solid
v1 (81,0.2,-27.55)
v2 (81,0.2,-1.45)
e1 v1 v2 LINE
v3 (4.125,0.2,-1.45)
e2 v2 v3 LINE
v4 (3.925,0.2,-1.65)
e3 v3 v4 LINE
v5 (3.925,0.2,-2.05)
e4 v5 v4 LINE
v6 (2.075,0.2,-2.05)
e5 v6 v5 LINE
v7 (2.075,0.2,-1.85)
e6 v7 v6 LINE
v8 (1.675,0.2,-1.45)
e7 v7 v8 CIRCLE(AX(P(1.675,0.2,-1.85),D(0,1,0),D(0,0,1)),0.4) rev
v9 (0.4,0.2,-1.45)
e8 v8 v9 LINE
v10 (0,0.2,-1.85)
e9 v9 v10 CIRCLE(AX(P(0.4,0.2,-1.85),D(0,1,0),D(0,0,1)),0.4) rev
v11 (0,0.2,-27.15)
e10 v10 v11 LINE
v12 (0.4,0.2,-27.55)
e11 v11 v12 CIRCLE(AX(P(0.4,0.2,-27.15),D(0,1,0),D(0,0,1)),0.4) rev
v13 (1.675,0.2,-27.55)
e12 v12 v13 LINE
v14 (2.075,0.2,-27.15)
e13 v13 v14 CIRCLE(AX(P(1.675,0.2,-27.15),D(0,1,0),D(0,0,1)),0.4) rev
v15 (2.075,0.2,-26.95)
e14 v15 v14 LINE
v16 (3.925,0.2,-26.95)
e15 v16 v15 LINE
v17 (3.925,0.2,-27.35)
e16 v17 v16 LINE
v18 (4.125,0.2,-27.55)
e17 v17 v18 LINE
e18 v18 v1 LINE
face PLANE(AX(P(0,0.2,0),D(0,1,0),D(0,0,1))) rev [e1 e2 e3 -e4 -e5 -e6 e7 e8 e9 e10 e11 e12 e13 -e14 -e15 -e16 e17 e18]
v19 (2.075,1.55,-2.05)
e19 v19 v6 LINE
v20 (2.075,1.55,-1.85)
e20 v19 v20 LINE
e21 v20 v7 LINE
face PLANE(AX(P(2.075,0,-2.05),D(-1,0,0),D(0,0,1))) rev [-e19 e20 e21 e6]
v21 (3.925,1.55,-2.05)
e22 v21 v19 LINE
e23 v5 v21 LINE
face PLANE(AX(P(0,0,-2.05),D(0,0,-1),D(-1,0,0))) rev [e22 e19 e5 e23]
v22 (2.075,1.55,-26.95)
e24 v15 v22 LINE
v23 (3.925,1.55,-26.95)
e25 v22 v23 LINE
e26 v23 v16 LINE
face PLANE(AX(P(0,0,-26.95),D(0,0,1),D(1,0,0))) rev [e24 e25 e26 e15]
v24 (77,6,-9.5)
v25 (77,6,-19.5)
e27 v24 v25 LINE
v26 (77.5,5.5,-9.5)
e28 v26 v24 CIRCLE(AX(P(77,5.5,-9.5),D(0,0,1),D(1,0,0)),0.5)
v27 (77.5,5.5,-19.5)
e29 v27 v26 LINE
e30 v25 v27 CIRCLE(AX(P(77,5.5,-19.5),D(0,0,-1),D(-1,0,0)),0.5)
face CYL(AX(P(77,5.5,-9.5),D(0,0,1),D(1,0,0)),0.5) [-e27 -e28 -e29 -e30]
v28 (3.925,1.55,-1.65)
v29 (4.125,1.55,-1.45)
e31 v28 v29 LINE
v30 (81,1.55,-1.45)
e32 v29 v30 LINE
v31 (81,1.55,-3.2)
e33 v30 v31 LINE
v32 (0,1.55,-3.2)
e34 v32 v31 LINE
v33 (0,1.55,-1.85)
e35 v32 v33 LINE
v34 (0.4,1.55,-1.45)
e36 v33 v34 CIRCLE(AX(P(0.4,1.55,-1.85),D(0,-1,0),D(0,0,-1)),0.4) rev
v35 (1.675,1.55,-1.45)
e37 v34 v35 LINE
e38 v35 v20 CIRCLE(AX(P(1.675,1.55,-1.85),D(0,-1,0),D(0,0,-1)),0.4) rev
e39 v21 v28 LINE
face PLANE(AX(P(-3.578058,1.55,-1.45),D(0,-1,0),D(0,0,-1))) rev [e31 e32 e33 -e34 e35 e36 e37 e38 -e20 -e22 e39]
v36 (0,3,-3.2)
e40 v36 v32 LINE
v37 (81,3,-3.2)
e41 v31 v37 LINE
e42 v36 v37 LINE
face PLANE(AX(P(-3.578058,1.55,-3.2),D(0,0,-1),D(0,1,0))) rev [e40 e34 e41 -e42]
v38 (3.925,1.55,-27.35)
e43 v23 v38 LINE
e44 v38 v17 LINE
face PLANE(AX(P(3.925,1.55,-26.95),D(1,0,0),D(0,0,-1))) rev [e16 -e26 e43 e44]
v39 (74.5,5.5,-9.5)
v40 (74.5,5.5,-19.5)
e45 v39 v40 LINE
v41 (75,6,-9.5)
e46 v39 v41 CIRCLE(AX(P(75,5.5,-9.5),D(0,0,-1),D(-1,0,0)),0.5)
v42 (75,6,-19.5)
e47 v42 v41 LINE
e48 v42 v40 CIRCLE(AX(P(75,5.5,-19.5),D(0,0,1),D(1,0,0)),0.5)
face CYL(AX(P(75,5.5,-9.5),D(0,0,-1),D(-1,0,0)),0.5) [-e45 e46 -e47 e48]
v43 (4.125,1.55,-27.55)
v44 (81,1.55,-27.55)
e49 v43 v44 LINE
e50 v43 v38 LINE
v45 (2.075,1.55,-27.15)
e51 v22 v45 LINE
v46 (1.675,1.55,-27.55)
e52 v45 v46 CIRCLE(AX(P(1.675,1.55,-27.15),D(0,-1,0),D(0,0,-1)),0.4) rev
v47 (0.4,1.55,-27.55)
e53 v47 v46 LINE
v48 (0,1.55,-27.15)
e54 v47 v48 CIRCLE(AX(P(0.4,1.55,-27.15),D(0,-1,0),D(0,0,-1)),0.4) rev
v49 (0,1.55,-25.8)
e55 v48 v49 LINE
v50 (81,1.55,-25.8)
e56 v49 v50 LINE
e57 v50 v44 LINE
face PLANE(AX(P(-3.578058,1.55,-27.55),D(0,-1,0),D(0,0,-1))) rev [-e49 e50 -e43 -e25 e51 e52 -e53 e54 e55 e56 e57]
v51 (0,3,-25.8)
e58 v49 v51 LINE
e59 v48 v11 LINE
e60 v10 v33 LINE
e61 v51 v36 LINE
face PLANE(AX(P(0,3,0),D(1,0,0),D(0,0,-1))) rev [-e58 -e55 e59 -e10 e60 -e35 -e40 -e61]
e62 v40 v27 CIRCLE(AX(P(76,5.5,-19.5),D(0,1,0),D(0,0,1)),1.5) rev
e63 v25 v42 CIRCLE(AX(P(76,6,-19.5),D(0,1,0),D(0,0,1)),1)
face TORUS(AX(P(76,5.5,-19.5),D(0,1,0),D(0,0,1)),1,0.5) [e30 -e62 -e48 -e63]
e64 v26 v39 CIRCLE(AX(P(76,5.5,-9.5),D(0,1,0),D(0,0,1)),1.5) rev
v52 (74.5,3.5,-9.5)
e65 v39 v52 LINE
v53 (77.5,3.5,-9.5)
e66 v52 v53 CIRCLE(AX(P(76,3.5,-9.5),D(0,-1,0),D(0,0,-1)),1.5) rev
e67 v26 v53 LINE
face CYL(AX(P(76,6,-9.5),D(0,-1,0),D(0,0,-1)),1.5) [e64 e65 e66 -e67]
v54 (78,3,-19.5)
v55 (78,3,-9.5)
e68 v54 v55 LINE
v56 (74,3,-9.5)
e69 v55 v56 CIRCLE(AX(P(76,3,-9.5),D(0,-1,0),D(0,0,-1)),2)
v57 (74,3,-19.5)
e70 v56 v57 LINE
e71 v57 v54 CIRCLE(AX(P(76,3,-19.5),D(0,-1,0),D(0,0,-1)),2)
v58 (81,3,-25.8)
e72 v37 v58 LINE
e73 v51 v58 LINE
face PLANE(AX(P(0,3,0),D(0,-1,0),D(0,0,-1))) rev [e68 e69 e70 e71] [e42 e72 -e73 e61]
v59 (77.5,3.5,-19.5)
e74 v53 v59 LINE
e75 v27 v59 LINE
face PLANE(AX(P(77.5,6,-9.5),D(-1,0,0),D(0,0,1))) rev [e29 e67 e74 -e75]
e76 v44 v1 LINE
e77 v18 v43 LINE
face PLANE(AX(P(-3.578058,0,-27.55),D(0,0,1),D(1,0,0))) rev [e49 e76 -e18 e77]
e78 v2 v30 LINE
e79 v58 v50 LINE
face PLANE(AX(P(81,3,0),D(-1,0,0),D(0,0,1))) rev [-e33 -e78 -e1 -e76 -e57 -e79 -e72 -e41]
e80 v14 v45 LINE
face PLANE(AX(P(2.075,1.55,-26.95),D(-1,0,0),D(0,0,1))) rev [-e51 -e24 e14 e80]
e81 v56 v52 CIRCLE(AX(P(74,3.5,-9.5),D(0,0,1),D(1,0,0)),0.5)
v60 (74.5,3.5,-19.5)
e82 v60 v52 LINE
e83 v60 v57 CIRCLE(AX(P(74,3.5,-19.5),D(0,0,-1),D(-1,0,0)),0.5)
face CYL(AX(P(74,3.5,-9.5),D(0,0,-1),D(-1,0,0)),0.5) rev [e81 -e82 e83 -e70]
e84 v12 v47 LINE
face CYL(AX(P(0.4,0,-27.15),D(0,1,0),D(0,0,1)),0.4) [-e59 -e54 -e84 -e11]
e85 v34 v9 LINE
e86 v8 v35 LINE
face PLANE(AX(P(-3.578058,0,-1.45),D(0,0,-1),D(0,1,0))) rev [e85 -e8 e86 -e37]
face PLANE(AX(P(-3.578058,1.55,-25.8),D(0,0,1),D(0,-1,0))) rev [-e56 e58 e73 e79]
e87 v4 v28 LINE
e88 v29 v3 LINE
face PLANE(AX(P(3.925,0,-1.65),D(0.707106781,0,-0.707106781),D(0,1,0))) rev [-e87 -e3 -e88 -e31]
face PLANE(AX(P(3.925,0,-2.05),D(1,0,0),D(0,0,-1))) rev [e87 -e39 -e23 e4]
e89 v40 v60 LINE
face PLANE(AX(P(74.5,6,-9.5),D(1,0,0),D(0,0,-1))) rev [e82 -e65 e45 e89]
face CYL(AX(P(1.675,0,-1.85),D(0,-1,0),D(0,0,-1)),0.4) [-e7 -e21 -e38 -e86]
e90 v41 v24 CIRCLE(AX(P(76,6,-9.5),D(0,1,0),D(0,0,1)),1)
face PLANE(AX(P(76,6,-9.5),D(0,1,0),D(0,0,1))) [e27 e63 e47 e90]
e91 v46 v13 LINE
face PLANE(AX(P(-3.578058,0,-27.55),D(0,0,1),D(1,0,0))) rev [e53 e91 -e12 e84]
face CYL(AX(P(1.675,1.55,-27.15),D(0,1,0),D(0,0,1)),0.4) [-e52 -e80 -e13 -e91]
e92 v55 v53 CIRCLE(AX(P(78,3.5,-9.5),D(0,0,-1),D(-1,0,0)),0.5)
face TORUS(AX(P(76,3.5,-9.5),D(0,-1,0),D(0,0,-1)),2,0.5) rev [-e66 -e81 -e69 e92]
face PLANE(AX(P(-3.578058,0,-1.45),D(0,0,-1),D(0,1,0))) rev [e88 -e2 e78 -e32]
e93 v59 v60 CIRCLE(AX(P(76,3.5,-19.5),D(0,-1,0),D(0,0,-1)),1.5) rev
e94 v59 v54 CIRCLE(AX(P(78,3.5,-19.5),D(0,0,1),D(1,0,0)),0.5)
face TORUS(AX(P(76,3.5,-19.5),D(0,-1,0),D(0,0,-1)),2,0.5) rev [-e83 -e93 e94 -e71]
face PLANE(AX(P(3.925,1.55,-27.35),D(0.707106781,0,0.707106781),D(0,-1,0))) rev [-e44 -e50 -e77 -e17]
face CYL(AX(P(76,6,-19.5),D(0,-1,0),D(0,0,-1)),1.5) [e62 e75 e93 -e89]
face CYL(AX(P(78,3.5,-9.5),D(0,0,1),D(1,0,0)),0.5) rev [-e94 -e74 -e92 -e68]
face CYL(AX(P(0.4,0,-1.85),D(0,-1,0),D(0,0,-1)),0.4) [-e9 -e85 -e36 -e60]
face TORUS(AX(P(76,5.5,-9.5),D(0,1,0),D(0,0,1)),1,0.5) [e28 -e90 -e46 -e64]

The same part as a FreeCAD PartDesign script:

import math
import FreeCAD as App
import Part
import Sketcher

V = App.Vector
Q = App.Units.Quantity


def edges_at(feature, points):
    """Names of the edges that pass closest to the given points."""
    edges = feature.Shape.Edges
    near = lambda p: min(range(len(edges)), key=lambda i: edges[i].distToShape(Part.Vertex(*p))[0])
    return sorted({f"Edge{near(p) + 1}" for p in points})


def add_polygon(sketch, points):
    """Adds a closed chain of lines whose ends are joined by coincident constraints."""
    first, n = sketch.GeometryCount, len(points)
    for a, b in zip(points, points[1:] + points[:1]):
        sketch.addGeometry(Part.LineSegment(App.Vector(*a, 0), App.Vector(*b, 0)), False)
    for i in range(n):
        sketch.addConstraint(Sketcher.Constraint("Coincident", first + i, 2, first + (i + 1) % n, 1))

doc = App.newDocument("Part")
body = doc.addObject("PartDesign::Body", "Body")

# Sketch on XZ plane
sketch1 = body.newObject("Sketcher::SketchObject", "Sketch")
sketch1.AttachmentSupport = (doc.getObject("XZ_Plane"), [""])
sketch1.MapMode = "FlatFace"
add_polygon(sketch1, [(0, -29), (0, 0), (81, 0), (81, -29)])  # lines 0-3
sketch1.addConstraint(Sketcher.Constraint("Vertical", 0))
sketch1.addConstraint(Sketcher.Constraint("Horizontal", 1))
sketch1.addConstraint(Sketcher.Constraint("Vertical", 2))
sketch1.addConstraint(Sketcher.Constraint("Horizontal", 3))
sketch1.addConstraint(Sketcher.Constraint("Coincident", 0, 2, -1, 1))
sketch1.addConstraint(Sketcher.Constraint("DistanceX", 1, 1, 1, 2, Q("81 mm")))
sketch1.addConstraint(Sketcher.Constraint("DistanceY", 0, 1, 0, 2, Q("29 mm")))
pad1 = body.newObject("PartDesign::Pad", "Pad")
pad1.Profile = sketch1
pad1.Length = 3
pad1.Reversed = True

# Sketch on YZ plane
sketch2 = body.newObject("Sketcher::SketchObject", "Sketch001")
sketch2.AttachmentSupport = (doc.getObject("YZ_Plane"), [""])
sketch2.MapMode = "FlatFace"
sketch2.AttachmentOffset = App.Placement(V(0, 0, 81), App.Rotation())
add_polygon(sketch2, [(3, -3), (3, 0), (0, 0), (0, -1.2), (1.8, -1.2), (1.8, -3)])  # lines 0-5
add_polygon(sketch2, [(0, -27.8), (0, -29), (3, -29), (3, -26), (1.8, -26), (1.8, -27.8)])  # lines 6-11
sketch2.addConstraint(Sketcher.Constraint("Vertical", 0))
sketch2.addConstraint(Sketcher.Constraint("Horizontal", 1))
sketch2.addConstraint(Sketcher.Constraint("Vertical", 2))
sketch2.addConstraint(Sketcher.Constraint("Horizontal", 3))
sketch2.addConstraint(Sketcher.Constraint("Vertical", 4))
sketch2.addConstraint(Sketcher.Constraint("Horizontal", 5))
sketch2.addConstraint(Sketcher.Constraint("Vertical", 6))
sketch2.addConstraint(Sketcher.Constraint("Horizontal", 7))
sketch2.addConstraint(Sketcher.Constraint("Vertical", 8))
sketch2.addConstraint(Sketcher.Constraint("Horizontal", 9))
sketch2.addConstraint(Sketcher.Constraint("Vertical", 10))
sketch2.addConstraint(Sketcher.Constraint("Horizontal", 11))
sketch2.addConstraint(Sketcher.Constraint("Coincident", 1, 2, -1, 1))
sketch2.addConstraint(Sketcher.Constraint("PointOnObject", 6, 2, -2))
sketch2.addConstraint(Sketcher.Constraint("Vertical", 5, 2, 7, 2))
sketch2.addConstraint(Sketcher.Constraint("Vertical", 4, 2, 9, 2))
sketch2.addConstraint(Sketcher.Constraint("Equal", 7, 0))
sketch2.addConstraint(Sketcher.Constraint("Equal", 9, 2))
sketch2.addConstraint(Sketcher.Constraint("Equal", 2, 6))
sketch2.addConstraint(Sketcher.Constraint("Equal", 0, 8))
sketch2.addConstraint(Sketcher.Constraint("DistanceX", 1, 2, 1, 1, Q("3 mm")))
sketch2.addConstraint(Sketcher.Constraint("DistanceY", 6, 2, -1, 1, Q("29 mm")))
sketch2.addConstraint(Sketcher.Constraint("DistanceX", 3, 1, 3, 2, Q("1.75 mm")))
pocket1 = body.newObject("PartDesign::Pocket", "Pocket")
pocket1.Profile = sketch2
pocket1.Length = 81

# Sketch on YZ plane
sketch3 = body.newObject("Sketcher::SketchObject", "Sketch002")
sketch3.AttachmentSupport = (doc.getObject("YZ_Plane"), [""])
sketch3.MapMode = "FlatFace"
sketch3.AttachmentOffset = App.Placement(V(0, 0, 81), App.Rotation())
add_polygon(sketch3, [(0, -27.55), (0, -27.75), (1.75, -27.75), (1.75, -26), (3, -26), (3, -25.8), (1.55, -25.8), (1.55, -27.55)])  # lines 0-7
add_polygon(sketch3, [(3, -3.2), (3, -3), (1.75, -3), (1.75, -1.25), (0, -1.25), (0, -1.45), (1.55, -1.45), (1.55, -3.2)])  # lines 8-15
sketch3.addConstraint(Sketcher.Constraint("Vertical", 0))
sketch3.addConstraint(Sketcher.Constraint("Horizontal", 1))
sketch3.addConstraint(Sketcher.Constraint("Vertical", 2))
sketch3.addConstraint(Sketcher.Constraint("Horizontal", 3))
sketch3.addConstraint(Sketcher.Constraint("Vertical", 4))
sketch3.addConstraint(Sketcher.Constraint("Horizontal", 5))
sketch3.addConstraint(Sketcher.Constraint("Vertical", 6))
sketch3.addConstraint(Sketcher.Constraint("Horizontal", 7))
sketch3.addConstraint(Sketcher.Constraint("Vertical", 8))
sketch3.addConstraint(Sketcher.Constraint("Horizontal", 9))
sketch3.addConstraint(Sketcher.Constraint("Vertical", 10))
sketch3.addConstraint(Sketcher.Constraint("Horizontal", 11))
sketch3.addConstraint(Sketcher.Constraint("Vertical", 12))
sketch3.addConstraint(Sketcher.Constraint("Horizontal", 13))
sketch3.addConstraint(Sketcher.Constraint("Vertical", 14))
sketch3.addConstraint(Sketcher.Constraint("Horizontal", 15))
sketch3.addConstraint(Sketcher.Constraint("PointOnObject", 0, 2, -2))
sketch3.addConstraint(Sketcher.Constraint("PointOnObject", 11, 2, -2))
sketch3.addConstraint(Sketcher.Constraint("Vertical", 4, 2, 8, 2))
sketch3.addConstraint(Sketcher.Constraint("Vertical", 2, 2, 9, 2))
sketch3.addConstraint(Sketcher.Constraint("Vertical", 6, 2, 13, 2))
sketch3.addConstraint(Sketcher.Constraint("Equal", 11, 2))
sketch3.addConstraint(Sketcher.Constraint("Equal", 0, 4))
sketch3.addConstraint(Sketcher.Constraint("Equal", 4, 8))
sketch3.addConstraint(Sketcher.Constraint("Equal", 6, 10))
sketch3.addConstraint(Sketcher.Constraint("Equal", 8, 12))
sketch3.addConstraint(Sketcher.Constraint("DistanceY", 0, 2, 0, 1, Q("0.2 mm")))
sketch3.addConstraint(Sketcher.Constraint("DistanceY", 2, 2, -1, 1, Q("26 mm")))
sketch3.addConstraint(Sketcher.Constraint("DistanceX", -1, 1, 3, 2, Q("3 mm")))
sketch3.addConstraint(Sketcher.Constraint("DistanceY", 8, 2, -1, 1, Q("3 mm")))
sketch3.addConstraint(Sketcher.Constraint("DistanceX", 1, 1, 1, 2, Q("1.75 mm")))
sketch3.addConstraint(Sketcher.Constraint("DistanceX", 5, 2, 5, 1, Q("1.45 mm")))
pocket2 = body.newObject("PartDesign::Pocket", "Pocket001")
pocket2.Profile = sketch3
pocket2.Length = 81

# Sketch on XY plane
sketch4 = body.newObject("Sketcher::SketchObject", "Sketch003")
sketch4.AttachmentSupport = (doc.getObject("XY_Plane"), [""])
sketch4.MapMode = "FlatFace"
sketch4.AttachmentOffset = App.Placement(V(0, 0, -1.45), App.Rotation())
add_polygon(sketch4, [(2.1, 1.6), (2.1, 0), (3.9, 0), (3.9, 1.6)])  # lines 0-3
sketch4.addConstraint(Sketcher.Constraint("Vertical", 0))
sketch4.addConstraint(Sketcher.Constraint("Horizontal", 1))
sketch4.addConstraint(Sketcher.Constraint("Vertical", 2))
sketch4.addConstraint(Sketcher.Constraint("Horizontal", 3))
sketch4.addConstraint(Sketcher.Constraint("PointOnObject", 0, 2, -1))
sketch4.addConstraint(Sketcher.Constraint("DistanceX", 1, 1, 1, 2, Q("1.85 mm")))
sketch4.addConstraint(Sketcher.Constraint("DistanceY", 0, 2, 0, 1, Q("1.55 mm")))
sketch4.addConstraint(Sketcher.Constraint("DistanceX", -1, 1, 0, 2, Q("2.075 mm")))
pocket3 = body.newObject("PartDesign::Pocket", "Pocket002")
pocket3.Profile = sketch4
pocket3.Length = 0.6
doc.recompute()

fillet = body.newObject("PartDesign::Fillet", "Fillet")
fillet.Base = (pocket3, edges_at(pocket3, [(2.075, 0.775, -1.45)]))
fillet.Radius = 0.4
doc.recompute()

chamfer = body.newObject("PartDesign::Chamfer", "Chamfer")
chamfer.Base = (fillet, edges_at(fillet, [(3.925, 0.775, -1.45)]))
chamfer.Size = 0.2

# Sketch on XY plane
sketch5 = body.newObject("Sketcher::SketchObject", "Sketch004")
sketch5.AttachmentSupport = (doc.getObject("XY_Plane"), [""])
sketch5.MapMode = "FlatFace"
sketch5.AttachmentOffset = App.Placement(V(0, 0, -27.55), App.Rotation())
add_polygon(sketch5, [(3.9, 1.6), (3.9, 0), (2.1, 0), (2.1, 1.6)])  # lines 0-3
sketch5.addConstraint(Sketcher.Constraint("Vertical", 0))
sketch5.addConstraint(Sketcher.Constraint("Horizontal", 1))
sketch5.addConstraint(Sketcher.Constraint("Vertical", 2))
sketch5.addConstraint(Sketcher.Constraint("Horizontal", 3))
sketch5.addConstraint(Sketcher.Constraint("PointOnObject", 0, 2, -1))
sketch5.addConstraint(Sketcher.Constraint("DistanceX", 1, 2, 1, 1, Q("1.85 mm")))
sketch5.addConstraint(Sketcher.Constraint("DistanceY", 0, 2, 0, 1, Q("1.55 mm")))
sketch5.addConstraint(Sketcher.Constraint("DistanceX", -1, 1, 0, 2, Q("3.925 mm")))
pocket4 = body.newObject("PartDesign::Pocket", "Pocket003")
pocket4.Profile = sketch5
pocket4.Length = 0.6
pocket4.Reversed = True
doc.recompute()

fillet2 = body.newObject("PartDesign::Fillet", "Fillet001")
fillet2.Base = (pocket4, edges_at(pocket4, [(2.075, 0.775, -27.55)]))
fillet2.Radius = 0.4
doc.recompute()

chamfer2 = body.newObject("PartDesign::Chamfer", "Chamfer001")
chamfer2.Base = (fillet2, edges_at(fillet2, [(3.925, 0.775, -27.55)]))
chamfer2.Size = 0.2

# Sketch on XZ plane
sketch6 = body.newObject("Sketcher::SketchObject", "Sketch005")
sketch6.AttachmentSupport = (doc.getObject("XZ_Plane"), [""])
sketch6.MapMode = "FlatFace"
add_polygon(sketch6, [(81, -28), (81, -1), (0, -1), (0, -28)])  # lines 0-3
sketch6.addConstraint(Sketcher.Constraint("Vertical", 0))
sketch6.addConstraint(Sketcher.Constraint("Horizontal", 1))
sketch6.addConstraint(Sketcher.Constraint("Vertical", 2))
sketch6.addConstraint(Sketcher.Constraint("Horizontal", 3))
sketch6.addConstraint(Sketcher.Constraint("PointOnObject", 1, 2, -2))
sketch6.addConstraint(Sketcher.Constraint("DistanceX", 1, 2, 1, 1, Q("81 mm")))
sketch6.addConstraint(Sketcher.Constraint("DistanceY", 0, 1, 0, 2, Q("26.1 mm")))
sketch6.addConstraint(Sketcher.Constraint("DistanceY", 0, 2, -1, 1, Q("1.45 mm")))
pocket5 = body.newObject("PartDesign::Pocket", "Pocket004")
pocket5.Profile = sketch6
pocket5.Length = 0.2
doc.recompute()

fillet3 = body.newObject("PartDesign::Fillet", "Fillet002")
fillet3.Base = (pocket5, edges_at(pocket5, [(0, 0.875, -27.55), (0, 0.875, -1.45)]))
fillet3.Radius = 0.4

# Sketch on XZ plane
sketch7 = body.newObject("Sketcher::SketchObject", "Sketch006")
sketch7.AttachmentSupport = (doc.getObject("XZ_Plane"), [""])
sketch7.MapMode = "FlatFace"
sketch7.AttachmentOffset = App.Placement(V(0, 0, -3), App.Rotation())
sketch7.addGeometry(Part.LineSegment(V(74.5, -19.5, 0), V(74.5, -9.5, 0)), False)
sketch7.addGeometry(Part.ArcOfCircle(Part.Circle(V(76, -9.5, 0), V(0, 0, 1), 1.5), math.radians(0), math.radians(180)), False)
sketch7.addGeometry(Part.LineSegment(V(77.5, -9.5, 0), V(77.5, -19.5, 0)), False)
sketch7.addGeometry(Part.ArcOfCircle(Part.Circle(V(76, -19.5, 0), V(0, 0, 1), 1.5), math.radians(180), math.radians(360)), False)
sketch7.addConstraint(Sketcher.Constraint("Tangent", 0, 2, 1, 2))
sketch7.addConstraint(Sketcher.Constraint("Tangent", 1, 1, 2, 1))
sketch7.addConstraint(Sketcher.Constraint("Tangent", 2, 2, 3, 2))
sketch7.addConstraint(Sketcher.Constraint("Tangent", 3, 1, 0, 1))
sketch7.addConstraint(Sketcher.Constraint("Vertical", 0))
sketch7.addConstraint(Sketcher.Constraint("Vertical", 2))
sketch7.addConstraint(Sketcher.Constraint("Radius", 1, Q("1.5 mm")))
sketch7.addConstraint(Sketcher.Constraint("DistanceY", 0, 1, 0, 2, Q("10 mm")))
sketch7.addConstraint(Sketcher.Constraint("DistanceX", -1, 1, 1, 3, Q("76 mm")))
sketch7.addConstraint(Sketcher.Constraint("DistanceY", 1, 3, -1, 1, Q("9.5 mm")))
pad2 = body.newObject("PartDesign::Pad", "Pad001")
pad2.Profile = sketch7
pad2.Length = 3
pad2.Reversed = True
doc.recompute()

fillet4 = body.newObject("PartDesign::Fillet", "Fillet003")
fillet4.Base = (pad2, edges_at(pad2, [
    (76, 6, -8),
    (77.5, 6, -14.5),
    (76, 6, -21),
    (74.5, 6, -14.5),
]))
fillet4.Radius = 0.5
doc.recompute()

fillet5 = body.newObject("PartDesign::Fillet", "Fillet004")
fillet5.Base = (fillet4, edges_at(fillet4, [
    (76, 3, -8),
    (77.5, 3, -14.5),
    (76, 3, -21),
    (74.5, 3, -14.5),
]))
fillet5.Radius = 0.5

doc.recompute()
